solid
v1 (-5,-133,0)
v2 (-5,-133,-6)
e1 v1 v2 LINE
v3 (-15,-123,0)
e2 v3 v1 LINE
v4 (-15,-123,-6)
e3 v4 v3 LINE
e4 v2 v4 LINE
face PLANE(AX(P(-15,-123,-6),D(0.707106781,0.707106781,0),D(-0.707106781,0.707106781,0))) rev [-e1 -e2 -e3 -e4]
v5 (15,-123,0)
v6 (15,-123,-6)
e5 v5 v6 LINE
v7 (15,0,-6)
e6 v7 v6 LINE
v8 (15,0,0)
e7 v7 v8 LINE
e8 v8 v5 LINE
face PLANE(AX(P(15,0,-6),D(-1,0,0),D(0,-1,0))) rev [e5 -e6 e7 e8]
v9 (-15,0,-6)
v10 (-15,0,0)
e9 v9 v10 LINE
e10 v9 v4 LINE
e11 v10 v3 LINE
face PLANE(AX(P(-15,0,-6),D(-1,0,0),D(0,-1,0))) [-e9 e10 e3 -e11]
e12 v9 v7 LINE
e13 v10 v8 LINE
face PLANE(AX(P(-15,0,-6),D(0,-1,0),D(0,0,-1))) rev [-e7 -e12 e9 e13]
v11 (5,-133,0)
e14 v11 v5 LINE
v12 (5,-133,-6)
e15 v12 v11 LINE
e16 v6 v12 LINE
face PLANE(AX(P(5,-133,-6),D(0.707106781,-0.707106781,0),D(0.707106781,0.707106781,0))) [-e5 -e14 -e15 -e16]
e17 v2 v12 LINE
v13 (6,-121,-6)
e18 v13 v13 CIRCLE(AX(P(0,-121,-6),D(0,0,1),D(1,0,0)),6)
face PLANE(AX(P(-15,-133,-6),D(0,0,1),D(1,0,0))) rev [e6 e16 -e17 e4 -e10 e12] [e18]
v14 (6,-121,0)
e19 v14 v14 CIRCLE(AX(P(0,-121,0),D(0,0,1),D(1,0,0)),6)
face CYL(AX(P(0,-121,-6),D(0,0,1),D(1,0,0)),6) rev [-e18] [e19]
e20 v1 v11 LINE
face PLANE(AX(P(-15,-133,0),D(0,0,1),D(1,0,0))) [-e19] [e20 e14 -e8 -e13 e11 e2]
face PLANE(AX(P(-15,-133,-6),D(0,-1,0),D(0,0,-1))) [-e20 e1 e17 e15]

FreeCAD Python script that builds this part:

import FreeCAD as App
import Part
import Sketcher


def edges_at(feature, points):
    """Names of the edges that pass closest to the given points."""
    edges = feature.Shape.Edges
    near = lambda p: min(range(len(edges)), key=lambda i: edges[i].distToShape(Part.Vertex(*p))[0])
    return sorted({f"Edge{near(p) + 1}" for p in points})

doc = App.newDocument("Part")
body = doc.addObject("PartDesign::Body", "Body")

sketch1 = doc.addObject("Sketcher::SketchObject", "Sketch")
body.addObject(sketch1)
sketch1.AttachmentSupport = (doc.XY_Plane, [""])
sketch1.MapMode = "FlatFace"
sketch1.addGeometry([
    Part.LineSegment(App.Vector(-15, 0, 0), App.Vector(-15, -133, 0)),
    Part.LineSegment(App.Vector(-15, -133, 0), App.Vector(15, -133, 0)),
    Part.LineSegment(App.Vector(15, -133, 0), App.Vector(15, 0, 0)),
    Part.LineSegment(App.Vector(15, 0, 0), App.Vector(-15, 0, 0)),
], False)
sketch1.addConstraint([
    Sketcher.Constraint("Coincident", 0, 2, 1, 1),
    Sketcher.Constraint("Coincident", 1, 2, 2, 1),
    Sketcher.Constraint("Coincident", 2, 2, 3, 1),
    Sketcher.Constraint("Coincident", 3, 2, 0, 1),
    Sketcher.Constraint("Vertical", 0),
    Sketcher.Constraint("Horizontal", 1),
    Sketcher.Constraint("Vertical", 2),
    Sketcher.Constraint("Horizontal", 3),
    Sketcher.Constraint("Symmetric", 2, 2, 3, 2, -1, 1),
    Sketcher.Constraint("DistanceX", 1, 1, 1, 2, 30.0),
    Sketcher.Constraint("DistanceY", 0, 2, 0, 1, 133.0),
])
pad1 = doc.addObject("PartDesign::Pad", "Pad")
body.addObject(pad1)
pad1.Profile = sketch1
pad1.Length = 6
pad1.Reversed = True
doc.recompute()

chamfer = doc.addObject("PartDesign::Chamfer", "Chamfer")
body.addObject(chamfer)
chamfer.Base = (pad1, edges_at(pad1, [(15, -133, -3), (-15, -133, -3)]))
chamfer.Size = 10

sketch2 = doc.addObject("Sketcher::SketchObject", "Sketch001")
body.addObject(sketch2)
sketch2.AttachmentSupport = (doc.XY_Plane, [""])
sketch2.MapMode = "FlatFace"
sketch2.addGeometry(Part.Circle(App.Vector(0, -121, 0), App.Vector(0, 0, 1), 6), False)
sketch2.addConstraint([
    Sketcher.Constraint("PointOnObject", 0, 3, -2),
    Sketcher.Constraint("Diameter", 0, 12.0),
    Sketcher.Constraint("DistanceY", 0, 3, -1, 1, 121.0),
])
pocket1 = doc.addObject("PartDesign::Pocket", "Pocket")
body.addObject(pocket1)
pocket1.Profile = sketch2
pocket1.Type = "ThroughAll"

doc.recompute()
